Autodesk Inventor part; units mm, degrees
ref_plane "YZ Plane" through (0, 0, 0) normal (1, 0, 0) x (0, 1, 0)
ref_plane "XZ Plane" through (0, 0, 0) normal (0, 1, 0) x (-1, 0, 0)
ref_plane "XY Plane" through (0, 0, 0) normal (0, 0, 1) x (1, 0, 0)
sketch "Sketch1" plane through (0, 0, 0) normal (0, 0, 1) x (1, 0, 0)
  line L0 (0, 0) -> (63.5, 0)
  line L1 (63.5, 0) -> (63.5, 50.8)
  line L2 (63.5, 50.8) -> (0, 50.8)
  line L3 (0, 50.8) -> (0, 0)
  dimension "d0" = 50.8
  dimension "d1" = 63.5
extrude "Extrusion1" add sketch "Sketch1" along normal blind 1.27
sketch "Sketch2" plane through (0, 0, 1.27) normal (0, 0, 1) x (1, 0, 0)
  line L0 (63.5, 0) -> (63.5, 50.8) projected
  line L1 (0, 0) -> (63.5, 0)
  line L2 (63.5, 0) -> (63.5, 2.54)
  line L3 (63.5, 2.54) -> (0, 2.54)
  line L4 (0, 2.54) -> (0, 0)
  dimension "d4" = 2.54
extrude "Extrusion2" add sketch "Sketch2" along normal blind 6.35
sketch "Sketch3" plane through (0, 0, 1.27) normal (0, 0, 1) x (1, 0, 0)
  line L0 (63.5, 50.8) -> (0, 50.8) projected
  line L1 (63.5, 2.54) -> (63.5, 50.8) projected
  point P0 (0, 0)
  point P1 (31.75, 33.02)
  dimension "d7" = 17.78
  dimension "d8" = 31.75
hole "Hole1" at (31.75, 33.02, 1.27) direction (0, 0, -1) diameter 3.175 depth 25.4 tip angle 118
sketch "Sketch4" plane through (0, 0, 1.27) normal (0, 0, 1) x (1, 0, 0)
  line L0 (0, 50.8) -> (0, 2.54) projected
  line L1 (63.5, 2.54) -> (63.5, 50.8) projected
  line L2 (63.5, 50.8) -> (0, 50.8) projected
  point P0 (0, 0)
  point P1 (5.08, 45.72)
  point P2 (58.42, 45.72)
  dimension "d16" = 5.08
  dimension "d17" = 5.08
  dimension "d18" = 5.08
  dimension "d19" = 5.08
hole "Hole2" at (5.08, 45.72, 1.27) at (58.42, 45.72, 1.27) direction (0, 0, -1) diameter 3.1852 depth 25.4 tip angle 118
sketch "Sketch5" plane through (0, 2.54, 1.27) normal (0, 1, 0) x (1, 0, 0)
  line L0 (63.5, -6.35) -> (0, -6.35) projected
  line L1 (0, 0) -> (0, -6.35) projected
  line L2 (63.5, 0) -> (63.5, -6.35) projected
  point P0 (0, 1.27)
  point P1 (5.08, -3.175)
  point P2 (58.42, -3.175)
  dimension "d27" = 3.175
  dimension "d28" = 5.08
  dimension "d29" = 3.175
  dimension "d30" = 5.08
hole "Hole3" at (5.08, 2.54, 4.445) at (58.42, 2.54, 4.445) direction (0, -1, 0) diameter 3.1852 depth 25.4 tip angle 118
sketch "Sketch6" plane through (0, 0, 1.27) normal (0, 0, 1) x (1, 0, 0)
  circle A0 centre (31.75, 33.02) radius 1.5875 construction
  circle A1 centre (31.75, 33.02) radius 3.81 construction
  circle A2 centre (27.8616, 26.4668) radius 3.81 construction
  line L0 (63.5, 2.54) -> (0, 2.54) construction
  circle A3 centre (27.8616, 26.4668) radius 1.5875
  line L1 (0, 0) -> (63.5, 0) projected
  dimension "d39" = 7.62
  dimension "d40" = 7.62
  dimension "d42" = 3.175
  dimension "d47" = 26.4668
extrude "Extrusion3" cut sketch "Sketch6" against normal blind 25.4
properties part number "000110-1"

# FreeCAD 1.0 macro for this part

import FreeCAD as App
import Part
import Sketcher
Q = App.Units.Quantity


def add_polygon(sketch, points):
    """Adds a closed chain of lines whose ends are joined by coincident constraints."""
    first, n = sketch.GeometryCount, len(points)
    for a, b in zip(points, points[1:] + points[:1]):
        sketch.addGeometry(Part.LineSegment(App.Vector(*a, 0), App.Vector(*b, 0)), False)
    for i in range(n):
        sketch.addConstraint(Sketcher.Constraint("Coincident", first + i, 2, first + (i + 1) % n, 1))

doc = App.newDocument("Part")
body = doc.addObject("PartDesign::Body", "Body")

# Sketch on XY plane
sketch1 = body.newObject("Sketcher::SketchObject", "Sketch")
sketch1.AttachmentSupport = (doc.getObject("XY_Plane"), [""])
sketch1.MapMode = "FlatFace"
add_polygon(sketch1, [(0, 51), (0, 0), (64, 0), (64, 51)])  # lines 0-3
sketch1.addConstraint(Sketcher.Constraint("Vertical", 0))
sketch1.addConstraint(Sketcher.Constraint("Horizontal", 1))
sketch1.addConstraint(Sketcher.Constraint("Vertical", 2))
sketch1.addConstraint(Sketcher.Constraint("Horizontal", 3))
sketch1.addConstraint(Sketcher.Constraint("Coincident", 0, 2, -1, 1))
sketch1.addConstraint(Sketcher.Constraint("DistanceY", 0, 2, 0, 1, Q("2 in")))
sketch1.addConstraint(Sketcher.Constraint("DistanceX", 1, 1, 1, 2, Q("2.5 in")))
pad1 = body.newObject("PartDesign::Pad", "Pad")
pad1.Profile = sketch1
pad1.Length = Q("0.05 in")

# Sketch on XY plane
sketch2 = body.newObject("Sketcher::SketchObject", "Sketch001")
sketch2.AttachmentSupport = (doc.getObject("XY_Plane"), [""])
sketch2.MapMode = "FlatFace"
sketch2.AttachmentOffset = App.Placement(App.Vector(0, 0, 0.05 * 25.4), App.Rotation())
add_polygon(sketch2, [(0, 0), (63.5, 0), (63.5, 2.5), (0, 2.5)])  # lines 0-3
sketch2.addConstraint(Sketcher.Constraint("Horizontal", 0))
sketch2.addConstraint(Sketcher.Constraint("Vertical", 1))
sketch2.addConstraint(Sketcher.Constraint("Horizontal", 2))
sketch2.addConstraint(Sketcher.Constraint("Vertical", 3))
sketch2.addConstraint(Sketcher.Constraint("Coincident", 3, 2, -1, 1))
sketch2.addConstraint(Sketcher.Constraint("DistanceY", 1, 1, 1, 2, Q("0.1 in")))
sketch2.addConstraint(Sketcher.Constraint("DistanceX", 0, 1, 0, 2, Q("2.5 in")))
pad2 = body.newObject("PartDesign::Pad", "Pad001")
pad2.Profile = sketch2
pad2.Length = Q("0.25 in")

# Sketch on XY plane
sketch3 = body.newObject("Sketcher::SketchObject", "Sketch002")
sketch3.AttachmentSupport = (doc.getObject("XY_Plane"), [""])
sketch3.MapMode = "FlatFace"
sketch3.AttachmentOffset = App.Placement(App.Vector(0, 0, 0.05 * 25.4), App.Rotation())
sketch3.addGeometry(Part.Circle(App.Vector(31.8, 33, 0), App.Vector(0, 0, 1), 1.6), False)
sketch3.addConstraint(Sketcher.Constraint("Diameter", 0, Q("0.125 in")))
sketch3.addConstraint(Sketcher.Constraint("DistanceY", -1, 1, 0, 3, Q("1.3 in")))
sketch3.addConstraint(Sketcher.Constraint("DistanceX", -1, 1, 0, 3, Q("1.25 in")))
doc.recompute()
hole = body.newObject("PartDesign::Hole", "Hole")
hole.Profile = sketch3
hole.ThreadType = "None"
hole.Diameter = Q("0.125 in")
hole.DepthType = "Dimension"
hole.Depth = Q("1 in")
hole.DrillPoint = "Angled"
hole.DrillPointAngle = 118

# Sketch on XY plane
sketch4 = body.newObject("Sketcher::SketchObject", "Sketch003")
sketch4.AttachmentSupport = (doc.getObject("XY_Plane"), [""])
sketch4.MapMode = "FlatFace"
sketch4.AttachmentOffset = App.Placement(App.Vector(0, 0, 0.05 * 25.4), App.Rotation())
sketch4.addGeometry(Part.Circle(App.Vector(5.1, 45.7, 0), App.Vector(0, 0, 1), 1.6), False)
sketch4.addGeometry(Part.Circle(App.Vector(58.4, 45.7, 0), App.Vector(0, 0, 1), 1.6), False)
sketch4.addConstraint(Sketcher.Constraint("Equal", 0, 1))
sketch4.addConstraint(Sketcher.Constraint("Horizontal", 0, 3, 1, 3))
sketch4.addConstraint(Sketcher.Constraint("Diameter", 0, Q("0.1254 in")))
sketch4.addConstraint(Sketcher.Constraint("DistanceX", -1, 1, 0, 3, Q("0.2 in")))
sketch4.addConstraint(Sketcher.Constraint("DistanceY", -1, 1, 0, 3, Q("1.8 in")))
sketch4.addConstraint(Sketcher.Constraint("DistanceX", -1, 1, 1, 3, Q("2.3 in")))
doc.recompute()
hole2 = body.newObject("PartDesign::Hole", "Hole001")
hole2.Profile = sketch4
hole2.ThreadType = "None"
hole2.Diameter = Q("0.1254016 in")
hole2.DepthType = "Dimension"
hole2.Depth = Q("1 in")
hole2.DrillPoint = "Angled"
hole2.DrillPointAngle = 118

# Sketch on XZ plane
sketch5 = body.newObject("Sketcher::SketchObject", "Sketch004")
sketch5.AttachmentSupport = (doc.getObject("XZ_Plane"), [""])
sketch5.MapMode = "FlatFace"
sketch5.AttachmentOffset = App.Placement(App.Vector(0, 0, -0.1 * 25.4), App.Rotation())
sketch5.addGeometry(Part.Circle(App.Vector(5.1, 4.4, 0), App.Vector(0, 0, 1), 1.6), False)
sketch5.addGeometry(Part.Circle(App.Vector(58.4, 4.4, 0), App.Vector(0, 0, 1), 1.6), False)
sketch5.addConstraint(Sketcher.Constraint("Equal", 0, 1))
sketch5.addConstraint(Sketcher.Constraint("Horizontal", 0, 3, 1, 3))
sketch5.addConstraint(Sketcher.Constraint("Diameter", 0, Q("0.1254 in")))
sketch5.addConstraint(Sketcher.Constraint("DistanceX", -1, 1, 0, 3, Q("0.2 in")))
sketch5.addConstraint(Sketcher.Constraint("DistanceX", -1, 1, 1, 3, Q("2.3 in")))
sketch5.addConstraint(Sketcher.Constraint("DistanceY", -1, 1, 0, 3, Q("0.175 in")))
doc.recompute()
hole3 = body.newObject("PartDesign::Hole", "Hole002")
hole3.Profile = sketch5
hole3.ThreadType = "None"
hole3.Diameter = Q("0.1254016 in")
hole3.DepthType = "Dimension"
hole3.Depth = Q("1 in")
hole3.DrillPoint = "Angled"
hole3.DrillPointAngle = 118
hole3.Reversed = True

# Sketch on XY plane
sketch6 = body.newObject("Sketcher::SketchObject", "Sketch005")
sketch6.AttachmentSupport = (doc.getObject("XY_Plane"), [""])
sketch6.MapMode = "FlatFace"
sketch6.AttachmentOffset = App.Placement(App.Vector(0, 0, 0.05 * 25.4), App.Rotation())
sketch6.addGeometry(Part.Circle(App.Vector(27.9, 26.5, 0), App.Vector(0, 0, 1), 1.6), False)
sketch6.addConstraint(Sketcher.Constraint("Diameter", 0, Q("0.125 in")))
sketch6.addConstraint(Sketcher.Constraint("DistanceY", -1, 1, 0, 3, Q("1.042 in")))
sketch6.addConstraint(Sketcher.Constraint("DistanceX", -1, 1, 0, 3, 27.8616))
pocket1 = body.newObject("PartDesign::Pocket", "Pocket")
pocket1.Profile = sketch6
pocket1.Length = Q("1 in")

doc.recompute()
